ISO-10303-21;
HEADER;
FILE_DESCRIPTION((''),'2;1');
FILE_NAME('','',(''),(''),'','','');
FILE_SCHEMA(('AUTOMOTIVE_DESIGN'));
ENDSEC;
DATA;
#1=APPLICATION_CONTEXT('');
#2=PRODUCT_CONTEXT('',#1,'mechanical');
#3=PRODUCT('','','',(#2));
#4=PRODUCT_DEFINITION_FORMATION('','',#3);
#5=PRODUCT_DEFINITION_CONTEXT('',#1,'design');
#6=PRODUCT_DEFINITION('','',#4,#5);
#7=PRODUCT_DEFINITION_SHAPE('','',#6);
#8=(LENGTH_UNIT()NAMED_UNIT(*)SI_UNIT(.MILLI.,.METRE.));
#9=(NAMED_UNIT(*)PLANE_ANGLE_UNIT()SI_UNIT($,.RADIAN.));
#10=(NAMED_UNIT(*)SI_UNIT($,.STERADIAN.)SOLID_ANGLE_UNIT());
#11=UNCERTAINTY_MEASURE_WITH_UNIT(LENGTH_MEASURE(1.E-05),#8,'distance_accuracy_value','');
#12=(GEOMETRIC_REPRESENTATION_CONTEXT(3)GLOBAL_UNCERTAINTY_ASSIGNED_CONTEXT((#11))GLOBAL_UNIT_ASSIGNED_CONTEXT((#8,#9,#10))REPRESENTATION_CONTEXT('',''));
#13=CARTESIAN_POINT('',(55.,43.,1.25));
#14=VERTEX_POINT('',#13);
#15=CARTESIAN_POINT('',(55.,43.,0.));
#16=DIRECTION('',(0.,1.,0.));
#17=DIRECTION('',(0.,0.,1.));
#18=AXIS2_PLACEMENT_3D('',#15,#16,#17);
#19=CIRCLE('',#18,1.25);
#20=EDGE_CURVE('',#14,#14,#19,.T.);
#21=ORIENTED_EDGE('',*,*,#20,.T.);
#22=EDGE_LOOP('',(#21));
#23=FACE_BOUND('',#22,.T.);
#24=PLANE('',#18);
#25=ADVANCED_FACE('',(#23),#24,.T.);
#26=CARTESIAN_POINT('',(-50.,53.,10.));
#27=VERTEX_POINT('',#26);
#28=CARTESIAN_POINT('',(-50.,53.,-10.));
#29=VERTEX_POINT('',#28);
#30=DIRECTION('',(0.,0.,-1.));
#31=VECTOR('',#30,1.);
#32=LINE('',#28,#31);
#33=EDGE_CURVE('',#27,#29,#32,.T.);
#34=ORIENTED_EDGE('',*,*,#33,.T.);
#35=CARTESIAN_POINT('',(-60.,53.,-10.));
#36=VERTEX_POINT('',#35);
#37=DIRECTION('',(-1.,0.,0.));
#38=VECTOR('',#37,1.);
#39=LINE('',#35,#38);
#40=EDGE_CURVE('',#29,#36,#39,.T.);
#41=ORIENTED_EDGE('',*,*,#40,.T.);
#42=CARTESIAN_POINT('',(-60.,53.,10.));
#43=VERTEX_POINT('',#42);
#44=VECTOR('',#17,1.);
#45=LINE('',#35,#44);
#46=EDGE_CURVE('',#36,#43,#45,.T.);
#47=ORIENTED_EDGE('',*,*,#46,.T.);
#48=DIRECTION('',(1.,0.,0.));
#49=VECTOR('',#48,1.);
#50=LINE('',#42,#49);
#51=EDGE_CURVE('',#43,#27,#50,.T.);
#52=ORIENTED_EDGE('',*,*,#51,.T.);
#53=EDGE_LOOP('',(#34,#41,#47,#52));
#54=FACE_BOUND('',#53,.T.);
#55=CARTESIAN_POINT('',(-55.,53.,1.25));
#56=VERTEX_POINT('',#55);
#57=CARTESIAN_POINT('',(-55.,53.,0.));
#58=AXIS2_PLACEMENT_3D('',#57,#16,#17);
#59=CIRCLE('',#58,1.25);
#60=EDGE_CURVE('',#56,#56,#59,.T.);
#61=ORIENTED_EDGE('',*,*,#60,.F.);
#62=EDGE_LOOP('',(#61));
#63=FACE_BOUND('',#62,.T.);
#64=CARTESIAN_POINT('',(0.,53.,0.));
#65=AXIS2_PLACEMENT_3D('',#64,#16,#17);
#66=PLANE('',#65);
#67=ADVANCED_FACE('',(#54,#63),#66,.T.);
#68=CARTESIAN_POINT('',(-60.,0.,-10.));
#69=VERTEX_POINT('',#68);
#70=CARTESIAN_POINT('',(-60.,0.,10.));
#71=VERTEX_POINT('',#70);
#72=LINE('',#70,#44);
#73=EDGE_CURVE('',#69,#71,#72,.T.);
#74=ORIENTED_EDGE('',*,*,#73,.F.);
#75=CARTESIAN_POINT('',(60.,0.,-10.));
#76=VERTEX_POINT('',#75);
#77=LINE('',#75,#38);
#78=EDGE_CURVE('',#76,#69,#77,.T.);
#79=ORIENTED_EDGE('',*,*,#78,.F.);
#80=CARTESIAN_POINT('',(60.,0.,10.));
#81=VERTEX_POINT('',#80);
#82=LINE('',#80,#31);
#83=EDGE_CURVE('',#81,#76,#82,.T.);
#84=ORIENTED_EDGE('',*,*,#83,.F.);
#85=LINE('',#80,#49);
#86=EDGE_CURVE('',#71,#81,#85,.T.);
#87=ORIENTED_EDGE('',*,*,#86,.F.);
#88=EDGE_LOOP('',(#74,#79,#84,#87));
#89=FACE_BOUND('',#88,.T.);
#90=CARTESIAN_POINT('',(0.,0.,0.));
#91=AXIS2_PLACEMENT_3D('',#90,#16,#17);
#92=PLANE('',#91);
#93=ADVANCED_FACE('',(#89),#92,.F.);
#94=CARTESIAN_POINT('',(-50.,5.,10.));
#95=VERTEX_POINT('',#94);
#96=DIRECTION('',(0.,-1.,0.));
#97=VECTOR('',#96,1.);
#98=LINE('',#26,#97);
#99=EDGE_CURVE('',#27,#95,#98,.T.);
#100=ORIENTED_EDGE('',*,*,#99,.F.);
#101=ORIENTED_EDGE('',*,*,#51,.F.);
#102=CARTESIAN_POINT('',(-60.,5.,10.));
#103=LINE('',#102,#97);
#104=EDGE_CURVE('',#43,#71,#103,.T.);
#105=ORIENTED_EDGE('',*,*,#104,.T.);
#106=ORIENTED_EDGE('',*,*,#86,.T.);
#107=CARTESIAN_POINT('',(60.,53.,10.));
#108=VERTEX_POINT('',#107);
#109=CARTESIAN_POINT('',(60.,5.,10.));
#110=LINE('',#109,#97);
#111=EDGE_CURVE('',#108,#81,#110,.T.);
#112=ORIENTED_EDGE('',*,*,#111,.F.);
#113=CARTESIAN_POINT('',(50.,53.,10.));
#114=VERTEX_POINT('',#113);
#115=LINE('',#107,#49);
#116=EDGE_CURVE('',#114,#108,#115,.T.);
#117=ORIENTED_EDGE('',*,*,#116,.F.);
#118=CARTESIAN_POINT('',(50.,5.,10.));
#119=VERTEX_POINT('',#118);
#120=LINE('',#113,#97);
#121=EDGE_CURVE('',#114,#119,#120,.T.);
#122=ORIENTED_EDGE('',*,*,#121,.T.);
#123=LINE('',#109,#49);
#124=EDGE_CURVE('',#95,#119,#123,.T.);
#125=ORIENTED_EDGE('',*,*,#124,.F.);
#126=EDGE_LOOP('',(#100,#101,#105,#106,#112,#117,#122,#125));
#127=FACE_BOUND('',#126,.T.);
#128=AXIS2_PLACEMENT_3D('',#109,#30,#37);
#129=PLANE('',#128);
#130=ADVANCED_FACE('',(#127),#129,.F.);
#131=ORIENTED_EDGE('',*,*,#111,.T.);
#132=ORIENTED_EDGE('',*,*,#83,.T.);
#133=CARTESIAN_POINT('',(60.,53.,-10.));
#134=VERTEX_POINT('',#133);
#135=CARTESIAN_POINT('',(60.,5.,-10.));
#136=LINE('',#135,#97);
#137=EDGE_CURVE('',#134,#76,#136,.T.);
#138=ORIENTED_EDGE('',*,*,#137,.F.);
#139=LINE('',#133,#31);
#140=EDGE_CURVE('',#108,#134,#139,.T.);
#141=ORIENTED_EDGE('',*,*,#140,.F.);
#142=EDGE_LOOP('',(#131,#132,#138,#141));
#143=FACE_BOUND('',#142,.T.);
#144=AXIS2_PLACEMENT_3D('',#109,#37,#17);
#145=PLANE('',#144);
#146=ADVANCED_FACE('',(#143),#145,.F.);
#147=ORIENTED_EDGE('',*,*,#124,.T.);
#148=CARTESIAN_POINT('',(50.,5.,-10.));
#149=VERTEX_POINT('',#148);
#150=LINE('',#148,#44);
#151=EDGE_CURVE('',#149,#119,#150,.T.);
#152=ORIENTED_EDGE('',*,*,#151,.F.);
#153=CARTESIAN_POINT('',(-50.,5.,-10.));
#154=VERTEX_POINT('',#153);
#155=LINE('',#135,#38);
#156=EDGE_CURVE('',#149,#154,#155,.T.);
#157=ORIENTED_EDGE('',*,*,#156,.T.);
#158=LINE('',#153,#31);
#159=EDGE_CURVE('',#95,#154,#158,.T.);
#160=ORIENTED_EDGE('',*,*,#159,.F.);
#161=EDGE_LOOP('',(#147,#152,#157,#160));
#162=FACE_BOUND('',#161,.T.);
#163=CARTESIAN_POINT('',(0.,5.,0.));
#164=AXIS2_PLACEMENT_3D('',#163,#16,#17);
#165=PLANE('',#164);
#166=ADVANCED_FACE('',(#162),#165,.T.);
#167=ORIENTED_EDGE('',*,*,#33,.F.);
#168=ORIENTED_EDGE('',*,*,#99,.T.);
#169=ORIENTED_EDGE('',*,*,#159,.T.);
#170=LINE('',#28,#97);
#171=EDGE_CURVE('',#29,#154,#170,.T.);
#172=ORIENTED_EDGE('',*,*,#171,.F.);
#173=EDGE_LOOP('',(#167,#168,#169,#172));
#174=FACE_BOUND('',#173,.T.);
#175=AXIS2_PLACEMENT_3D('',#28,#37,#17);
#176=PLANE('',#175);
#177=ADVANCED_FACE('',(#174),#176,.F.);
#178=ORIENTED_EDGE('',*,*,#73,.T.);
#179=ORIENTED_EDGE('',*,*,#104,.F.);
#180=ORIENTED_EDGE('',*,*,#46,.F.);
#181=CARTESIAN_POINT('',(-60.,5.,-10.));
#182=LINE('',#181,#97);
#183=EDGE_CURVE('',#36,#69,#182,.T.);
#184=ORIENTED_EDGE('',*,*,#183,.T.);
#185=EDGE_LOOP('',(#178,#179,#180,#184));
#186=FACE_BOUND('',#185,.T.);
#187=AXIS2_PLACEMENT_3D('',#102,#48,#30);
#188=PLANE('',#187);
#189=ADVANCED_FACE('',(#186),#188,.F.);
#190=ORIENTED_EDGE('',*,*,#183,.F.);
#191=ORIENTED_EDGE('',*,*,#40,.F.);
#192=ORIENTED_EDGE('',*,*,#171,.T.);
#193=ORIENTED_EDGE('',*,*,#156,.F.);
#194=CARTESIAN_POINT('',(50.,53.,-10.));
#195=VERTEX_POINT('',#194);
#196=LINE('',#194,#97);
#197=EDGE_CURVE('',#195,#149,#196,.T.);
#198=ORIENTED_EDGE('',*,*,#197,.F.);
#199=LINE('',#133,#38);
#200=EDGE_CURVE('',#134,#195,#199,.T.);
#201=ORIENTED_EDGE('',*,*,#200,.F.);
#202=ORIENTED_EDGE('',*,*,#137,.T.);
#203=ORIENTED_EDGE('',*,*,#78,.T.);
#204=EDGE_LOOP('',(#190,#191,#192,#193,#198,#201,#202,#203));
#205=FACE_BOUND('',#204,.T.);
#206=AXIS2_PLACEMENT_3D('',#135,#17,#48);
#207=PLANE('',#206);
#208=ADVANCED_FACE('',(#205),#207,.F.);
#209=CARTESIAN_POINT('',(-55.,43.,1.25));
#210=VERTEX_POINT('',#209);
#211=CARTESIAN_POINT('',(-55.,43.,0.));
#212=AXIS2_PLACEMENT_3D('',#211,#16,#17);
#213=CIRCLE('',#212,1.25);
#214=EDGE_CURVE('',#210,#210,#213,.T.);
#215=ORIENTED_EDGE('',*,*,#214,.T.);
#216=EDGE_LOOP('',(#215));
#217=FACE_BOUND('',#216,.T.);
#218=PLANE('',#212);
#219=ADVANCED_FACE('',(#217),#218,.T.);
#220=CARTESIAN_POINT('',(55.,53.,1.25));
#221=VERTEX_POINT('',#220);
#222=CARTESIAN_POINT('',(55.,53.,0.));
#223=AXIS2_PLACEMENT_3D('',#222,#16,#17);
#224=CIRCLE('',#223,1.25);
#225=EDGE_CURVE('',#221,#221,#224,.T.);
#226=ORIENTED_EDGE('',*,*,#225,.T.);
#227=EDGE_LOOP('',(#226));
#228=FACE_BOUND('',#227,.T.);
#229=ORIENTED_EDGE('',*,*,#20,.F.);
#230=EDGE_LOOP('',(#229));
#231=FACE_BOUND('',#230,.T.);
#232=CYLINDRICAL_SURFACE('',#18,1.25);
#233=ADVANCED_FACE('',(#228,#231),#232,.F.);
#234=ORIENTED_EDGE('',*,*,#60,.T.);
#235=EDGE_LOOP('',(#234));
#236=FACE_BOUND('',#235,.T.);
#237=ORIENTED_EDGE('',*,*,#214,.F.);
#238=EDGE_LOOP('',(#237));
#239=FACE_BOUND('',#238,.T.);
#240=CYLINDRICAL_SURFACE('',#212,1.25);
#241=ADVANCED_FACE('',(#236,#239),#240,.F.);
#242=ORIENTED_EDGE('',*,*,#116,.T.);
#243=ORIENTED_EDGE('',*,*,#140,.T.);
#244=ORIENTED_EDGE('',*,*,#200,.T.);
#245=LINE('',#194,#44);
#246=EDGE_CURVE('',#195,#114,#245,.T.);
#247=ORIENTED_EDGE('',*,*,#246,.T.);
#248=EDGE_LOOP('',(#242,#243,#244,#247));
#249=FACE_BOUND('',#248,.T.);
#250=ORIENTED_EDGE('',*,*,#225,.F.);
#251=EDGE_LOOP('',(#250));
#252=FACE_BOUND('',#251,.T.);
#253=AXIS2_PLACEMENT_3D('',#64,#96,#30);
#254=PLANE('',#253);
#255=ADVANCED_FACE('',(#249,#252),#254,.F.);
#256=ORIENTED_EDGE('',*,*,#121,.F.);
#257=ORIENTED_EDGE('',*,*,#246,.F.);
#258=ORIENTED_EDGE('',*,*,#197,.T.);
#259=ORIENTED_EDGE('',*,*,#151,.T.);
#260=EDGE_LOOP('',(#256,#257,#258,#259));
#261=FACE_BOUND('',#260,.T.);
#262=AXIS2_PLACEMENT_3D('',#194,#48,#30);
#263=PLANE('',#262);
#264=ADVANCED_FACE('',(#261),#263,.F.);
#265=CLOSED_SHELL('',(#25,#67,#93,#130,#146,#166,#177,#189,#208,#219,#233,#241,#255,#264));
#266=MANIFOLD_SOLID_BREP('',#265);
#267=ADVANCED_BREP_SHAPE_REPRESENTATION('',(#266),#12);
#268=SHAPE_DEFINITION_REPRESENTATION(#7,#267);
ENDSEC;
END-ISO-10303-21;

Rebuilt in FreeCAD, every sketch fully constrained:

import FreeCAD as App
import Part
import Sketcher

V = App.Vector
Q = App.Units.Quantity


def add_polygon(sketch, points):
    """Adds a closed chain of lines whose ends are joined by coincident constraints."""
    first, n = sketch.GeometryCount, len(points)
    for a, b in zip(points, points[1:] + points[:1]):
        sketch.addGeometry(Part.LineSegment(App.Vector(*a, 0), App.Vector(*b, 0)), False)
    for i in range(n):
        sketch.addConstraint(Sketcher.Constraint("Coincident", first + i, 2, first + (i + 1) % n, 1))

doc = App.newDocument("Part")
body = doc.addObject("PartDesign::Body", "Body")

# Sketch on XZ plane
sketch1 = doc.addObject("Sketcher::SketchObject", "Sketch")
body.addObject(sketch1)
sketch1.AttachmentSupport = (doc.XZ_Plane, [""])
sketch1.MapMode = "FlatFace"
add_polygon(sketch1, [(-60, -10), (-60, 10), (60, 10), (60, -10)])  # lines 0-3
sketch1.addConstraint([
    Sketcher.Constraint("Vertical", 0),
    Sketcher.Constraint("Horizontal", 1),
    Sketcher.Constraint("Vertical", 2),
    Sketcher.Constraint("Horizontal", 3),
    Sketcher.Constraint("Symmetric", 0, 2, 2, 2, -1, 1),
    Sketcher.Constraint("DistanceX", 1, 1, 1, 2, Q("120 mm")),
    Sketcher.Constraint("DistanceY", 0, 1, 0, 2, Q("20 mm")),
])
pad1 = doc.addObject("PartDesign::Pad", "Pad")
body.addObject(pad1)
pad1.Profile = sketch1
pad1.Length = 5
pad1.Reversed = True

# Sketch on XZ plane
sketch2 = doc.addObject("Sketcher::SketchObject", "Sketch001")
body.addObject(sketch2)
sketch2.AttachmentSupport = (doc.XZ_Plane, [""])
sketch2.MapMode = "FlatFace"
sketch2.AttachmentOffset = App.Placement(V(0, 0, -5), App.Rotation())
add_polygon(sketch2, [(50, -10), (50, 10), (60, 10), (60, -10)])  # lines 0-3
add_polygon(sketch2, [(-60, -10), (-60, 10), (-50, 10), (-50, -10)])  # lines 4-7
sketch2.addConstraint([
    Sketcher.Constraint("Vertical", 0),
    Sketcher.Constraint("Horizontal", 1),
    Sketcher.Constraint("Vertical", 2),
    Sketcher.Constraint("Horizontal", 3),
    Sketcher.Constraint("Vertical", 4),
    Sketcher.Constraint("Horizontal", 5),
    Sketcher.Constraint("Vertical", 6),
    Sketcher.Constraint("Horizontal", 7),
    Sketcher.Constraint("Symmetric", 2, 2, 4, 2, -1, 1),
    Sketcher.Constraint("Symmetric", 0, 2, 6, 2, -1, 1),
    Sketcher.Constraint("Horizontal", 1, 2, 4, 2),
    Sketcher.Constraint("DistanceX", 1, 1, 1, 2, Q("10 mm")),
    Sketcher.Constraint("DistanceY", 0, 1, 0, 2, Q("20 mm")),
    Sketcher.Constraint("DistanceX", -1, 1, 0, 2, Q("50 mm")),
])
pad2 = doc.addObject("PartDesign::Pad", "Pad001")
body.addObject(pad2)
pad2.Profile = sketch2
pad2.Length = 48
pad2.Reversed = True

# Sketch on XZ plane
sketch3 = doc.addObject("Sketcher::SketchObject", "Sketch002")
body.addObject(sketch3)
sketch3.AttachmentSupport = (doc.XZ_Plane, [""])
sketch3.MapMode = "FlatFace"
sketch3.AttachmentOffset = App.Placement(V(0, 0, -53), App.Rotation())
sketch3.addGeometry([
    Part.Circle(V(-55, 0, 0), V(0, 0, 1), 1.2),
    Part.Circle(V(55, 0, 0), V(0, 0, 1), 1.2),
], False)
sketch3.addConstraint([
    Sketcher.Constraint("Equal", 0, 1),
    Sketcher.Constraint("Symmetric", 0, 3, 1, 3, -1, 1),
    Sketcher.Constraint("PointOnObject", 0, 3, -1),
    Sketcher.Constraint("Diameter", 0, Q("2.5 mm")),
    Sketcher.Constraint("DistanceX", 0, 3, -1, 1, Q("55 mm")),
])
pocket1 = doc.addObject("PartDesign::Pocket", "Pocket")
body.addObject(pocket1)
pocket1.Profile = sketch3
pocket1.Length = 10
pocket1.Reversed = True

doc.recompute()
